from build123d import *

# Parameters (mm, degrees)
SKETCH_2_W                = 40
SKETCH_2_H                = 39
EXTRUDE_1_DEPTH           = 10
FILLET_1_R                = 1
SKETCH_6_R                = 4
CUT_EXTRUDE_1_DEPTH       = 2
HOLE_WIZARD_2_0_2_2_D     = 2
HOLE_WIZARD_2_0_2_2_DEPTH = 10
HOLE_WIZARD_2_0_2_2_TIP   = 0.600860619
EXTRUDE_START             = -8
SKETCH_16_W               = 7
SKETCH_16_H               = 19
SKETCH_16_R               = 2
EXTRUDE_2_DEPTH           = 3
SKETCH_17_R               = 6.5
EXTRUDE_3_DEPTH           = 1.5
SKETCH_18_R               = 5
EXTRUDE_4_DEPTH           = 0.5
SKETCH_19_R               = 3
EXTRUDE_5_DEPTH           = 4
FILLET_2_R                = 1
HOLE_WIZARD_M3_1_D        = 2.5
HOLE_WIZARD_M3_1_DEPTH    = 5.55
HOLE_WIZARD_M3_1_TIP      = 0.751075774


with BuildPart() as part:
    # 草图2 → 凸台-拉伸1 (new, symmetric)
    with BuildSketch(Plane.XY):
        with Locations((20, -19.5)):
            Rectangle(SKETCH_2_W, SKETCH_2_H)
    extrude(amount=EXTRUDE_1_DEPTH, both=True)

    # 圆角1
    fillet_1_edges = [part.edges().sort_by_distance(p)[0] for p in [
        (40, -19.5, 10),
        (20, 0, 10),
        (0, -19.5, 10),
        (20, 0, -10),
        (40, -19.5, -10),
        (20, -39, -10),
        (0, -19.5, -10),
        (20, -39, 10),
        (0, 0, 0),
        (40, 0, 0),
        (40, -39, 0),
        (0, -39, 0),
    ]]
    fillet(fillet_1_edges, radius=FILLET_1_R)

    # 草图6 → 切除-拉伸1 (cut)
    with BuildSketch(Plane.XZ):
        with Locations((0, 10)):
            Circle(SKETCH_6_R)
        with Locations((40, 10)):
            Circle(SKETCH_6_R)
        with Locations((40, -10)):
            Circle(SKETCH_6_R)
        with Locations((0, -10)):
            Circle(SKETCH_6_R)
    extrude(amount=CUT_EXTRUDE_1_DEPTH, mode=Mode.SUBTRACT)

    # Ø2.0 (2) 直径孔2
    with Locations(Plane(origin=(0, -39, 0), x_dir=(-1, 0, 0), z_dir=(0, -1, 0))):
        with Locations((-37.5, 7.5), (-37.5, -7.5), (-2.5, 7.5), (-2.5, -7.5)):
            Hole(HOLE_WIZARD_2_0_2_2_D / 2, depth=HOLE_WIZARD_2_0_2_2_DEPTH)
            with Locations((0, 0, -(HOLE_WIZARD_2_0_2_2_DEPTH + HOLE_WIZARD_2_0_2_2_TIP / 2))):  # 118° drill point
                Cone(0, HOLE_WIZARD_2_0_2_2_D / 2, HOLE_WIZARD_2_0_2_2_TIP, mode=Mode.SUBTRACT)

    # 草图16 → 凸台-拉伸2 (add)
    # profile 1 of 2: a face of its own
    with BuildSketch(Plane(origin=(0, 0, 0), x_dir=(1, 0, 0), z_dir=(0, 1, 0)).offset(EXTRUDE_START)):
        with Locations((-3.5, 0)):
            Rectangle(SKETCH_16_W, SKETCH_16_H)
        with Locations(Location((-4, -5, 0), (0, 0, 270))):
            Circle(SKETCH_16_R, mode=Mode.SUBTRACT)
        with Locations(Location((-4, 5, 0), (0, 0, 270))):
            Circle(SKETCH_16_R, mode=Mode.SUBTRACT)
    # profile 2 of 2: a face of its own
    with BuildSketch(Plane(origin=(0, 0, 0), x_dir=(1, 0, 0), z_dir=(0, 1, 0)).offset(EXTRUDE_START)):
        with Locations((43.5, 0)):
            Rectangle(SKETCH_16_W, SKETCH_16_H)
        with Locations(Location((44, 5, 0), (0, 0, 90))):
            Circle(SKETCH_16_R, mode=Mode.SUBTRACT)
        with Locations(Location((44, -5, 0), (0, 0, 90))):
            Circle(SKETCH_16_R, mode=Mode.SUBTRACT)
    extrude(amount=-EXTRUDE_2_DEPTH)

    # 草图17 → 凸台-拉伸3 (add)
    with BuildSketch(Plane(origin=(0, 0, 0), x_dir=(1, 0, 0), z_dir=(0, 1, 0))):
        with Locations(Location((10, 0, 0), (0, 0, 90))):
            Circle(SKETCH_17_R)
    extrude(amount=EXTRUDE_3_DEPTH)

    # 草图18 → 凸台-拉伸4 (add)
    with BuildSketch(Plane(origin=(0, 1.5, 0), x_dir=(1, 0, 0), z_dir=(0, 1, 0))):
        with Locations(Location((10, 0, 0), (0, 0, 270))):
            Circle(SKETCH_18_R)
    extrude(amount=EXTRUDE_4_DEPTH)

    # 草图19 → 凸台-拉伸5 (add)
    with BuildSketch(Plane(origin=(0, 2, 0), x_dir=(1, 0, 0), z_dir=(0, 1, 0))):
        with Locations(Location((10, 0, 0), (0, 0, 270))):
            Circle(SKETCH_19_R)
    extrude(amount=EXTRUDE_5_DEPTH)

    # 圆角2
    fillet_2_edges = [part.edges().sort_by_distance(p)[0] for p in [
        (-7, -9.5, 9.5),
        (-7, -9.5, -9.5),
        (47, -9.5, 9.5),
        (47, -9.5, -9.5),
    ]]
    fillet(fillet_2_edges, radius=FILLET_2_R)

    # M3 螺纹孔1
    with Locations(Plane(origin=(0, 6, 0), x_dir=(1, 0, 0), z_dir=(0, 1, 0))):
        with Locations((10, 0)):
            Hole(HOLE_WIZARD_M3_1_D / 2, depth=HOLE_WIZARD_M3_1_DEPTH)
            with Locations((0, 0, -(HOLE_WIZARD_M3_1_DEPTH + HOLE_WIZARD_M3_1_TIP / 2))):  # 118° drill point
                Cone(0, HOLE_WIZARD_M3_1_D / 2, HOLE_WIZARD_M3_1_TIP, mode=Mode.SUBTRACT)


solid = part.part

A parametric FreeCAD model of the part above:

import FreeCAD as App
import Part
import Sketcher
from FreeCAD import Vector


def edges_at(feature, points):
    """Names of the edges that pass closest to the given points."""
    edges = feature.Shape.Edges
    near = lambda p: min(range(len(edges)), key=lambda i: edges[i].distToShape(Part.Vertex(*p))[0])
    return sorted({f"Edge{near(p) + 1}" for p in points})

doc = App.newDocument("Part")
body = doc.addObject("PartDesign::Body", "Body")

# Sketch on XY plane
sketch1 = body.newObject("Sketcher::SketchObject", "Sketch")
sketch1.AttachmentSupport = (doc.getObject("XY_Plane"), [""])
sketch1.MapMode = "FlatFace"
sketch1.addGeometry([
    Part.LineSegment(Vector(0, 0, 0), Vector(0, -39, 0)),
    Part.LineSegment(Vector(0, -39, 0), Vector(40, -39, 0)),
    Part.LineSegment(Vector(40, -39, 0), Vector(40, 0, 0)),
    Part.LineSegment(Vector(40, 0, 0), Vector(0, 0, 0)),
], False)
sketch1.addConstraint([
    Sketcher.Constraint("Coincident", 0, 2, 1, 1),
    Sketcher.Constraint("Coincident", 1, 2, 2, 1),
    Sketcher.Constraint("Coincident", 2, 2, 3, 1),
    Sketcher.Constraint("Coincident", 3, 2, 0, 1),
    Sketcher.Constraint("Vertical", 0),
    Sketcher.Constraint("Horizontal", 1),
    Sketcher.Constraint("Vertical", 2),
    Sketcher.Constraint("Horizontal", 3),
    Sketcher.Constraint("Coincident", 3, 2, -1, 1),
    Sketcher.Constraint("DistanceX", 1, 1, 1, 2, 40.0),
    Sketcher.Constraint("DistanceY", 0, 2, 0, 1, 39.0),
])
pad1 = body.newObject("PartDesign::Pad", "Pad")
pad1.Profile = sketch1
pad1.Length = 20
pad1.Midplane = True
doc.recompute()

fillet = body.newObject("PartDesign::Fillet", "Fillet")
fillet.Base = (pad1, ["Edge1"])
fillet.UseAllEdges = True
fillet.Radius = 1

# Sketch on XZ plane
sketch2 = body.newObject("Sketcher::SketchObject", "Sketch001")
sketch2.AttachmentSupport = (doc.getObject("XZ_Plane"), [""])
sketch2.MapMode = "FlatFace"
sketch2.addGeometry([
    Part.Circle(Vector(0, 10, 0), Vector(0, 0, 1), 4),
    Part.Circle(Vector(40, 10, 0), Vector(0, 0, 1), 4),
    Part.Circle(Vector(40, -10, 0), Vector(0, 0, 1), 4),
    Part.Circle(Vector(0, -10, 0), Vector(0, 0, 1), 4),
], False)
sketch2.addConstraint([
    Sketcher.Constraint("Equal", 0, 1),
    Sketcher.Constraint("Equal", 1, 2),
    Sketcher.Constraint("Equal", 2, 3),
    Sketcher.Constraint("Symmetric", 0, 3, 3, 3, -1, 1),
    Sketcher.Constraint("Symmetric", 1, 3, 2, 3, -1),
    Sketcher.Constraint("PointOnObject", 0, 3, -2),
    Sketcher.Constraint("Horizontal", 0, 3, 1, 3),
    Sketcher.Constraint("Diameter", 0, 8.0),
    Sketcher.Constraint("DistanceY", -1, 1, 0, 3, 10.0),
    Sketcher.Constraint("DistanceX", -1, 1, 1, 3, 40.0),
])
pocket1 = body.newObject("PartDesign::Pocket", "Pocket")
pocket1.Profile = sketch2
pocket1.Length = 2
pocket1.Reversed = True

# Sketch on XZ plane
sketch3 = body.newObject("Sketcher::SketchObject", "Sketch002")
sketch3.AttachmentSupport = (doc.getObject("XZ_Plane"), [""])
sketch3.MapMode = "FlatFace"
sketch3.AttachmentOffset = App.Placement(Vector(0, 0, 39), App.Rotation())
sketch3.addGeometry([
    Part.Circle(Vector(37.5, -7.5, 0), Vector(0, 0, 1), 1),
    Part.Circle(Vector(37.5, 7.5, 0), Vector(0, 0, 1), 1),
    Part.Circle(Vector(2.5, -7.5, 0), Vector(0, 0, 1), 1),
    Part.Circle(Vector(2.5, 7.5, 0), Vector(0, 0, 1), 1),
], False)
sketch3.addConstraint([
    Sketcher.Constraint("Equal", 0, 1),
    Sketcher.Constraint("Equal", 1, 2),
    Sketcher.Constraint("Equal", 2, 3),
    Sketcher.Constraint("Symmetric", 0, 3, 1, 3, -1),
    Sketcher.Constraint("Symmetric", 2, 3, 3, 3, -1),
    Sketcher.Constraint("Horizontal", 0, 3, 2, 3),
    Sketcher.Constraint("Diameter", 0, 2.0),
    Sketcher.Constraint("DistanceY", 0, 3, 1, 3, 15.0),
    Sketcher.Constraint("DistanceX", 2, 3, 0, 3, 35.0),
    Sketcher.Constraint("DistanceX", -1, 1, 0, 3, 37.5),
])
doc.recompute()
hole = body.newObject("PartDesign::Hole", "Hole")
hole.Profile = sketch3
hole.ThreadType = "None"
hole.Diameter = 2
hole.DepthType = "Dimension"
hole.Depth = 10
hole.DrillPoint = "Angled"
hole.DrillPointAngle = 118

# Sketch on XZ plane
sketch4 = body.newObject("Sketcher::SketchObject", "Sketch003")
sketch4.AttachmentSupport = (doc.getObject("XZ_Plane"), [""])
sketch4.MapMode = "FlatFace"
sketch4.AttachmentOffset = App.Placement(Vector(0, 0, 8), App.Rotation())
sketch4.addGeometry([
    Part.LineSegment(Vector(-7, -9.5, 0), Vector(-7, 9.5, 0)),  # 0
    Part.LineSegment(Vector(-7, 9.5, 0), Vector(0, 9.5, 0)),  # 1
    Part.LineSegment(Vector(0, 9.5, 0), Vector(0, -9.5, 0)),  # 2
    Part.LineSegment(Vector(0, -9.5, 0), Vector(-7, -9.5, 0)),  # 3
    Part.Circle(Vector(-4, 5, 0), Vector(0, 0, 1), 2),  # 4
    Part.Circle(Vector(-4, -5, 0), Vector(0, 0, 1), 2),  # 5
    Part.LineSegment(Vector(40, -9.5, 0), Vector(40, 9.5, 0)),  # 6
    Part.LineSegment(Vector(40, 9.5, 0), Vector(47, 9.5, 0)),  # 7
    Part.LineSegment(Vector(47, 9.5, 0), Vector(47, -9.5, 0)),  # 8
    Part.LineSegment(Vector(47, -9.5, 0), Vector(40, -9.5, 0)),  # 9
    Part.Circle(Vector(44, 5, 0), Vector(0, 0, 1), 2),  # 10
    Part.Circle(Vector(44, -5, 0), Vector(0, 0, 1), 2),  # 11
], False)
sketch4.addConstraint([
    Sketcher.Constraint("Coincident", 0, 2, 1, 1),
    Sketcher.Constraint("Coincident", 1, 2, 2, 1),
    Sketcher.Constraint("Coincident", 2, 2, 3, 1),
    Sketcher.Constraint("Coincident", 3, 2, 0, 1),
    Sketcher.Constraint("Coincident", 6, 2, 7, 1),
    Sketcher.Constraint("Coincident", 7, 2, 8, 1),
    Sketcher.Constraint("Coincident", 8, 2, 9, 1),
    Sketcher.Constraint("Coincident", 9, 2, 6, 1),
    Sketcher.Constraint("Vertical", 0),
    Sketcher.Constraint("Horizontal", 1),
    Sketcher.Constraint("Vertical", 2),
    Sketcher.Constraint("Horizontal", 3),
    Sketcher.Constraint("Vertical", 6),
    Sketcher.Constraint("Horizontal", 7),
    Sketcher.Constraint("Vertical", 8),
    Sketcher.Constraint("Horizontal", 9),
    Sketcher.Constraint("Equal", 4, 5),
    Sketcher.Constraint("Equal", 5, 10),
    Sketcher.Constraint("Equal", 10, 11),
    Sketcher.Constraint("Symmetric", 1, 2, 2, 2, -1, 1),
    Sketcher.Constraint("Symmetric", 4, 3, 5, 3, -1),
    Sketcher.Constraint("Symmetric", 10, 3, 11, 3, -1),
    Sketcher.Constraint("Horizontal", 4, 3, 10, 3),
    Sketcher.Constraint("Horizontal", 1, 2, 6, 2),
    Sketcher.Constraint("Horizontal", 3, 2, 8, 2),
    Sketcher.Constraint("Equal", 3, 7),
    Sketcher.Constraint("Diameter", 4, 4.0),
    Sketcher.Constraint("DistanceX", 1, 1, 1, 2, 7.0),
    Sketcher.Constraint("DistanceY", 0, 1, 0, 2, 19.0),
    Sketcher.Constraint("DistanceX", 4, 3, -1, 1, 4.0),
    Sketcher.Constraint("DistanceY", -1, 1, 4, 3, 5.0),
    Sketcher.Constraint("DistanceX", -1, 1, 10, 3, 44.0),
    Sketcher.Constraint("DistanceX", -1, 1, 6, 2, 40.0),
])
pad2 = body.newObject("PartDesign::Pad", "Pad001")
pad2.Profile = sketch4
pad2.Length = 3

# Sketch on XZ plane
sketch5 = body.newObject("Sketcher::SketchObject", "Sketch004")
sketch5.AttachmentSupport = (doc.getObject("XZ_Plane"), [""])
sketch5.MapMode = "FlatFace"
sketch5.addGeometry(Part.Circle(Vector(10, 0, 0), Vector(0, 0, 1), 6.5), False)
sketch5.addConstraint([
    Sketcher.Constraint("PointOnObject", 0, 3, -1),
    Sketcher.Constraint("Diameter", 0, 13.0),
    Sketcher.Constraint("DistanceX", -1, 1, 0, 3, 10.0),
])
pad3 = body.newObject("PartDesign::Pad", "Pad002")
pad3.Profile = sketch5
pad3.Length = 1.5
pad3.Reversed = True

# Sketch on XZ plane
sketch6 = body.newObject("Sketcher::SketchObject", "Sketch005")
sketch6.AttachmentSupport = (doc.getObject("XZ_Plane"), [""])
sketch6.MapMode = "FlatFace"
sketch6.AttachmentOffset = App.Placement(Vector(0, 0, -1.5), App.Rotation())
sketch6.addGeometry(Part.Circle(Vector(10, 0, 0), Vector(0, 0, 1), 5), False)
sketch6.addConstraint([
    Sketcher.Constraint("PointOnObject", 0, 3, -1),
    Sketcher.Constraint("Diameter", 0, 10.0),
    Sketcher.Constraint("DistanceX", -1, 1, 0, 3, 10.0),
])
pad4 = body.newObject("PartDesign::Pad", "Pad003")
pad4.Profile = sketch6
pad4.Length = 0.5
pad4.Reversed = True

# Sketch on XZ plane
sketch7 = body.newObject("Sketcher::SketchObject", "Sketch006")
sketch7.AttachmentSupport = (doc.getObject("XZ_Plane"), [""])
sketch7.MapMode = "FlatFace"
sketch7.AttachmentOffset = App.Placement(Vector(0, 0, -2), App.Rotation())
sketch7.addGeometry(Part.Circle(Vector(10, 0, 0), Vector(0, 0, 1), 3), False)
sketch7.addConstraint([
    Sketcher.Constraint("PointOnObject", 0, 3, -1),
    Sketcher.Constraint("Diameter", 0, 6.0),
    Sketcher.Constraint("DistanceX", -1, 1, 0, 3, 10.0),
])
pad5 = body.newObject("PartDesign::Pad", "Pad004")
pad5.Profile = sketch7
pad5.Length = 4
pad5.Reversed = True
doc.recompute()

fillet2 = body.newObject("PartDesign::Fillet", "Fillet001")
fillet2.Base = (pad5, edges_at(pad5, [
    (-7, -9.5, 9.5),
    (-7, -9.5, -9.5),
    (47, -9.5, 9.5),
    (47, -9.5, -9.5),
]))
fillet2.Radius = 1

# Sketch on XZ plane
sketch8 = body.newObject("Sketcher::SketchObject", "Sketch007")
sketch8.AttachmentSupport = (doc.getObject("XZ_Plane"), [""])
sketch8.MapMode = "FlatFace"
sketch8.AttachmentOffset = App.Placement(Vector(0, 0, -6), App.Rotation())
sketch8.addGeometry(Part.Circle(Vector(10, 0, 0), Vector(0, 0, 1), 1.25), False)
sketch8.addConstraint([
    Sketcher.Constraint("PointOnObject", 0, 3, -1),
    Sketcher.Constraint("Diameter", 0, 2.5),
    Sketcher.Constraint("DistanceX", -1, 1, 0, 3, 10.0),
])
doc.recompute()
hole2 = body.newObject("PartDesign::Hole", "Hole001")
hole2.Profile = sketch8
hole2.ThreadType = "None"
hole2.Diameter = 2.5
hole2.DepthType = "Dimension"
hole2.Depth = 5.55
hole2.DrillPoint = "Angled"
hole2.DrillPointAngle = 118
hole2.Reversed = True

doc.recompute()
